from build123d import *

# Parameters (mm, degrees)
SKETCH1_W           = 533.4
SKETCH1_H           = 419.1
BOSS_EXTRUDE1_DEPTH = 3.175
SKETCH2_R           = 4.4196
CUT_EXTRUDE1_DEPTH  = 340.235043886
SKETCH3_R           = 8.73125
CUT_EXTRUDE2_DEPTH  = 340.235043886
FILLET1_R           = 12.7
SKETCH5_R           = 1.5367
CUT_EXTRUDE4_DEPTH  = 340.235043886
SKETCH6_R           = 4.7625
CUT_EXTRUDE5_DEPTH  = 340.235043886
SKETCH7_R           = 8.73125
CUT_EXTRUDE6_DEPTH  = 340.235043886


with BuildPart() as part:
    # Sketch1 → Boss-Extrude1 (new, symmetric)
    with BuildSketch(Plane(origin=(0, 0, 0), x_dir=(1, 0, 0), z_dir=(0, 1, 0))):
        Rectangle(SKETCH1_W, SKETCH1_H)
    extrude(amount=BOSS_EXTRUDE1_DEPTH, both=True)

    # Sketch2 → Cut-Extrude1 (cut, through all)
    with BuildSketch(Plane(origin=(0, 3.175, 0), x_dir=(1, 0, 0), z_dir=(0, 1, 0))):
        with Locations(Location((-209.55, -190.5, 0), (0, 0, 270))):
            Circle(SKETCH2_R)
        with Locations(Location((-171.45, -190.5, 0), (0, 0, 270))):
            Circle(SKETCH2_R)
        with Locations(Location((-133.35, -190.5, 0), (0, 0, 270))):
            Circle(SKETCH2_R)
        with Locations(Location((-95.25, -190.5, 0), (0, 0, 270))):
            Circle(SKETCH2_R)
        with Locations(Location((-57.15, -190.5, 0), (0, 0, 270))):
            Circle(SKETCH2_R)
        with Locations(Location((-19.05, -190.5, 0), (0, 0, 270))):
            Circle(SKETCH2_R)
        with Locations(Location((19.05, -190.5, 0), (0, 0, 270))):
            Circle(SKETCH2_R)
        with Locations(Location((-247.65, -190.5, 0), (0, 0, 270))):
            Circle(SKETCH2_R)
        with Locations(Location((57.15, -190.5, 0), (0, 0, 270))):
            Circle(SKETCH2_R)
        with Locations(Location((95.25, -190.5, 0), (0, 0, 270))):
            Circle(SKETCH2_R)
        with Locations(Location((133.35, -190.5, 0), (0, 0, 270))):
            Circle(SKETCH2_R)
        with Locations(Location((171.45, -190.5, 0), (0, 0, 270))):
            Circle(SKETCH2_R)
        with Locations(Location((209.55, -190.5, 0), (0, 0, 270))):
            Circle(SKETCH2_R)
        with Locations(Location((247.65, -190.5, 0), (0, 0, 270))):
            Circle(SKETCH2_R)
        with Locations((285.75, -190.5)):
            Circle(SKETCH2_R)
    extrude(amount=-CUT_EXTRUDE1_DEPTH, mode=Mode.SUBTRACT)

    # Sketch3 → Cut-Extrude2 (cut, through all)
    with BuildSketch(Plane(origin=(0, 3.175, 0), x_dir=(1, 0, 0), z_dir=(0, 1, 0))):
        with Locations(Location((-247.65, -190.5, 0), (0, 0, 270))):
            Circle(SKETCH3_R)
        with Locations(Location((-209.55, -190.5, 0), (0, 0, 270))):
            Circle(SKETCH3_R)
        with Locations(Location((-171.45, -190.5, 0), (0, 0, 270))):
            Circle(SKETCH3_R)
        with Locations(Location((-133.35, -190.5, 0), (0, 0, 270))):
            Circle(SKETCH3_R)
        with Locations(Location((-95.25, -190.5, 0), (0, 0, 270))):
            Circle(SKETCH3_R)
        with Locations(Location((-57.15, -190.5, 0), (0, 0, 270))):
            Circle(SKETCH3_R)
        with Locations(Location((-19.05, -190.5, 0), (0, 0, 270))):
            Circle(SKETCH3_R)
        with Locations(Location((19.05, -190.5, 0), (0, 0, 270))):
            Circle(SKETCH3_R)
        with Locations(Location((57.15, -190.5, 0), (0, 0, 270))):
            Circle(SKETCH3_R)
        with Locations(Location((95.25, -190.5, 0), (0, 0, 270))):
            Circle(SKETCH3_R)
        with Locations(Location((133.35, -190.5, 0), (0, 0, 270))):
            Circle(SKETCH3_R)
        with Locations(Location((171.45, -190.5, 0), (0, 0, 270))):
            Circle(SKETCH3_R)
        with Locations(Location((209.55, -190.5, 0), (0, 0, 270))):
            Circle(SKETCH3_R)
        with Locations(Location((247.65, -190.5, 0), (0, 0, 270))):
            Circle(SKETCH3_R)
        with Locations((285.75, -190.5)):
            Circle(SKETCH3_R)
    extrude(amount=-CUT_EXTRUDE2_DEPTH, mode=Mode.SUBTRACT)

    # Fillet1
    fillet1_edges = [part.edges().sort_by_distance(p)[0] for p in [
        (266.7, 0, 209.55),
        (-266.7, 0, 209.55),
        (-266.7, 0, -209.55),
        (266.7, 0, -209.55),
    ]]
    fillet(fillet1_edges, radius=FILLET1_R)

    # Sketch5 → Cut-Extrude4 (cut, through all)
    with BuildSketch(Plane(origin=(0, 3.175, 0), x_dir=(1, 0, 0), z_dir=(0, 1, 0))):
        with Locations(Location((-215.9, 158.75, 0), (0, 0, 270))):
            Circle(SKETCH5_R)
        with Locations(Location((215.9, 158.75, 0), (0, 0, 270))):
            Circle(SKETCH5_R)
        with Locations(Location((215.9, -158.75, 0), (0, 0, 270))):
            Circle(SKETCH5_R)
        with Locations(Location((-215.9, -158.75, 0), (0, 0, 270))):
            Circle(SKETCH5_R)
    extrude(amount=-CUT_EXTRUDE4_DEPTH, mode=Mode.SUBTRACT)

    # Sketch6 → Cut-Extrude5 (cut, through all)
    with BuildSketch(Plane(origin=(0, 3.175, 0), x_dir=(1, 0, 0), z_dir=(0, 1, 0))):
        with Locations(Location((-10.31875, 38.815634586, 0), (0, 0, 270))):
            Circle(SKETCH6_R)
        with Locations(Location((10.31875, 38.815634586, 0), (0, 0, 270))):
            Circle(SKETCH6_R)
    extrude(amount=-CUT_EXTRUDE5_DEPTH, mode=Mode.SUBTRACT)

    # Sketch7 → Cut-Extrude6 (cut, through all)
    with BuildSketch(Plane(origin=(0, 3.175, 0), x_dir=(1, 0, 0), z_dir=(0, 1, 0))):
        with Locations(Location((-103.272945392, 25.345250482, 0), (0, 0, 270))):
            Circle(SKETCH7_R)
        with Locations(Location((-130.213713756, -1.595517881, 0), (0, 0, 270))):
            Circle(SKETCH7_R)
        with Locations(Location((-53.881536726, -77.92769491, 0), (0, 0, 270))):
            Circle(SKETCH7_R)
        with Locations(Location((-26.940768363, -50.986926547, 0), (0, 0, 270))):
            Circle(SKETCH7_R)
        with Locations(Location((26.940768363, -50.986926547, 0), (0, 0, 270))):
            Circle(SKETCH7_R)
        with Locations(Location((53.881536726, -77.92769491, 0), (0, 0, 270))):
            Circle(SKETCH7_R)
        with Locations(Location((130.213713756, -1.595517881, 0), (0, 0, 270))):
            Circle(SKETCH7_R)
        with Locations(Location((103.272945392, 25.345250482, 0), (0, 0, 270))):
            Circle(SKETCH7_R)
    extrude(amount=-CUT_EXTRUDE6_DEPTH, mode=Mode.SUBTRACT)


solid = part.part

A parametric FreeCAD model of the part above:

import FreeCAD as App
import Part
import Sketcher
from FreeCAD import Vector
Q = App.Units.Quantity


def edges_at(feature, points):
    """Names of the edges that pass closest to the given points."""
    edges = feature.Shape.Edges
    near = lambda p: min(range(len(edges)), key=lambda i: edges[i].distToShape(Part.Vertex(*p))[0])
    return sorted({f"Edge{near(p) + 1}" for p in points})


def add_polygon(sketch, points):
    """Adds a closed chain of lines whose ends are joined by coincident constraints."""
    first, n = sketch.GeometryCount, len(points)
    for a, b in zip(points, points[1:] + points[:1]):
        sketch.addGeometry(Part.LineSegment(App.Vector(*a, 0), App.Vector(*b, 0)), False)
    for i in range(n):
        sketch.addConstraint(Sketcher.Constraint("Coincident", first + i, 2, first + (i + 1) % n, 1))

doc = App.newDocument("Part")
body = doc.addObject("PartDesign::Body", "Body")

# Sketch on XZ plane
sketch1 = doc.addObject("Sketcher::SketchObject", "Sketch")
body.addObject(sketch1)
sketch1.AttachmentSupport = (doc.XZ_Plane, [""])
sketch1.MapMode = "FlatFace"
add_polygon(sketch1, [(-267, -210), (-267, 210), (267, 210), (267, -210)])  # lines 0-3
sketch1.addConstraint(Sketcher.Constraint("Vertical", 0))
sketch1.addConstraint(Sketcher.Constraint("Horizontal", 1))
sketch1.addConstraint(Sketcher.Constraint("Vertical", 2))
sketch1.addConstraint(Sketcher.Constraint("Horizontal", 3))
sketch1.addConstraint(Sketcher.Constraint("Symmetric", 0, 2, 2, 2, -1, 1))
sketch1.addConstraint(Sketcher.Constraint("DistanceX", 1, 1, 1, 2, Q("21 in")))
sketch1.addConstraint(Sketcher.Constraint("DistanceY", 0, 1, 0, 2, Q("16.5 in")))
pad1 = doc.addObject("PartDesign::Pad", "Pad")
body.addObject(pad1)
pad1.Profile = sketch1
pad1.Length = Q("0.25 in")
pad1.Midplane = True

# Sketch on XZ plane
sketch2 = doc.addObject("Sketcher::SketchObject", "Sketch001")
body.addObject(sketch2)
sketch2.AttachmentSupport = (doc.XZ_Plane, [""])
sketch2.MapMode = "FlatFace"
sketch2.AttachmentOffset = App.Placement(Vector(0, 0, -0.125 * 25.4), App.Rotation())
sketch2.addGeometry(Part.Circle(Vector(-209.6, 190.5, 0), Vector(0, 0, 1), 4.4), False)
sketch2.addGeometry(Part.Circle(Vector(-171.4, 190.5, 0), Vector(0, 0, 1), 4.4), False)
sketch2.addGeometry(Part.Circle(Vector(-133.3, 190.5, 0), Vector(0, 0, 1), 4.4), False)
sketch2.addGeometry(Part.Circle(Vector(-95.2, 190.5, 0), Vector(0, 0, 1), 4.4), False)
sketch2.addGeometry(Part.Circle(Vector(-57.1, 190.5, 0), Vector(0, 0, 1), 4.4), False)
sketch2.addGeometry(Part.Circle(Vector(-19.1, 190.5, 0), Vector(0, 0, 1), 4.4), False)
sketch2.addGeometry(Part.Circle(Vector(19.1, 190.5, 0), Vector(0, 0, 1), 4.4), False)
sketch2.addGeometry(Part.Circle(Vector(-247.7, 190.5, 0), Vector(0, 0, 1), 4.4), False)
sketch2.addGeometry(Part.Circle(Vector(57.1, 190.5, 0), Vector(0, 0, 1), 4.4), False)
sketch2.addGeometry(Part.Circle(Vector(95.2, 190.5, 0), Vector(0, 0, 1), 4.4), False)
sketch2.addGeometry(Part.Circle(Vector(133.3, 190.5, 0), Vector(0, 0, 1), 4.4), False)
sketch2.addGeometry(Part.Circle(Vector(171.4, 190.5, 0), Vector(0, 0, 1), 4.4), False)
sketch2.addGeometry(Part.Circle(Vector(209.6, 190.5, 0), Vector(0, 0, 1), 4.4), False)
sketch2.addGeometry(Part.Circle(Vector(247.7, 190.5, 0), Vector(0, 0, 1), 4.4), False)
sketch2.addGeometry(Part.Circle(Vector(285.8, 190.5, 0), Vector(0, 0, 1), 4.4), False)
sketch2.addConstraint(Sketcher.Constraint("Equal", 0, 1))
sketch2.addConstraint(Sketcher.Constraint("Equal", 1, 2))
sketch2.addConstraint(Sketcher.Constraint("Equal", 2, 3))
sketch2.addConstraint(Sketcher.Constraint("Equal", 3, 4))
sketch2.addConstraint(Sketcher.Constraint("Equal", 4, 5))
sketch2.addConstraint(Sketcher.Constraint("Equal", 5, 6))
sketch2.addConstraint(Sketcher.Constraint("Equal", 6, 7))
sketch2.addConstraint(Sketcher.Constraint("Equal", 7, 8))
sketch2.addConstraint(Sketcher.Constraint("Equal", 8, 9))
sketch2.addConstraint(Sketcher.Constraint("Equal", 9, 10))
sketch2.addConstraint(Sketcher.Constraint("Equal", 10, 11))
sketch2.addConstraint(Sketcher.Constraint("Equal", 11, 12))
sketch2.addConstraint(Sketcher.Constraint("Equal", 12, 13))
sketch2.addConstraint(Sketcher.Constraint("Equal", 13, 14))
sketch2.addConstraint(Sketcher.Constraint("Symmetric", 5, 3, 6, 3, -2))
sketch2.addConstraint(Sketcher.Constraint("Symmetric", 4, 3, 8, 3, -2))
sketch2.addConstraint(Sketcher.Constraint("Symmetric", 3, 3, 9, 3, -2))
sketch2.addConstraint(Sketcher.Constraint("Symmetric", 2, 3, 10, 3, -2))
sketch2.addConstraint(Sketcher.Constraint("Symmetric", 1, 3, 11, 3, -2))
sketch2.addConstraint(Sketcher.Constraint("Symmetric", 0, 3, 12, 3, -2))
sketch2.addConstraint(Sketcher.Constraint("Symmetric", 7, 3, 13, 3, -2))
sketch2.addConstraint(Sketcher.Constraint("Horizontal", 0, 3, 1, 3))
sketch2.addConstraint(Sketcher.Constraint("Horizontal", 1, 3, 2, 3))
sketch2.addConstraint(Sketcher.Constraint("Horizontal", 2, 3, 3, 3))
sketch2.addConstraint(Sketcher.Constraint("Horizontal", 3, 3, 4, 3))
sketch2.addConstraint(Sketcher.Constraint("Horizontal", 4, 3, 5, 3))
sketch2.addConstraint(Sketcher.Constraint("Horizontal", 6, 3, 7, 3))
sketch2.addConstraint(Sketcher.Constraint("Horizontal", 13, 3, 14, 3))
sketch2.addConstraint(Sketcher.Constraint("Diameter", 0, Q("0.348 in")))
sketch2.addConstraint(Sketcher.Constraint("DistanceX", 0, 3, 2, 3, Q("3 in")))
sketch2.addConstraint(Sketcher.Constraint("DistanceX", 1, 3, 3, 3, Q("3 in")))
sketch2.addConstraint(Sketcher.Constraint("DistanceX", 2, 3, 4, 3, Q("3 in")))
sketch2.addConstraint(Sketcher.Constraint("DistanceX", 3, 3, 5, 3, Q("3 in")))
sketch2.addConstraint(Sketcher.Constraint("DistanceX", 4, 3, 6, 3, Q("3 in")))
sketch2.addConstraint(Sketcher.Constraint("DistanceX", 7, 3, 1, 3, Q("3 in")))
sketch2.addConstraint(Sketcher.Constraint("DistanceX", 12, 3, 14, 3, Q("3 in")))
sketch2.addConstraint(Sketcher.Constraint("DistanceY", -1, 1, 0, 3, Q("7.5 in")))
sketch2.addConstraint(Sketcher.Constraint("DistanceX", 0, 3, 1, 3, Q("1.5 in")))
pocket1 = doc.addObject("PartDesign::Pocket", "Pocket")
body.addObject(pocket1)
pocket1.Profile = sketch2
pocket1.Type = "ThroughAll"
pocket1.Reversed = True

# Sketch on XZ plane
sketch3 = doc.addObject("Sketcher::SketchObject", "Sketch002")
body.addObject(sketch3)
sketch3.AttachmentSupport = (doc.XZ_Plane, [""])
sketch3.MapMode = "FlatFace"
sketch3.AttachmentOffset = App.Placement(Vector(0, 0, -0.125 * 25.4), App.Rotation())
sketch3.addGeometry(Part.Circle(Vector(-248, 190, 0), Vector(0, 0, 1), 9), False)
sketch3.addGeometry(Part.Circle(Vector(-210, 190, 0), Vector(0, 0, 1), 9), False)
sketch3.addGeometry(Part.Circle(Vector(-171, 190, 0), Vector(0, 0, 1), 9), False)
sketch3.addGeometry(Part.Circle(Vector(-133, 190, 0), Vector(0, 0, 1), 9), False)
sketch3.addGeometry(Part.Circle(Vector(-95, 190, 0), Vector(0, 0, 1), 9), False)
sketch3.addGeometry(Part.Circle(Vector(-57, 190, 0), Vector(0, 0, 1), 9), False)
sketch3.addGeometry(Part.Circle(Vector(-19, 190, 0), Vector(0, 0, 1), 9), False)
sketch3.addGeometry(Part.Circle(Vector(19, 190, 0), Vector(0, 0, 1), 9), False)
sketch3.addGeometry(Part.Circle(Vector(57, 190, 0), Vector(0, 0, 1), 9), False)
sketch3.addGeometry(Part.Circle(Vector(95, 190, 0), Vector(0, 0, 1), 9), False)
sketch3.addGeometry(Part.Circle(Vector(133, 190, 0), Vector(0, 0, 1), 9), False)
sketch3.addGeometry(Part.Circle(Vector(171, 190, 0), Vector(0, 0, 1), 9), False)
sketch3.addGeometry(Part.Circle(Vector(210, 190, 0), Vector(0, 0, 1), 9), False)
sketch3.addGeometry(Part.Circle(Vector(248, 190, 0), Vector(0, 0, 1), 9), False)
sketch3.addGeometry(Part.Circle(Vector(286, 190, 0), Vector(0, 0, 1), 9), False)
sketch3.addConstraint(Sketcher.Constraint("Equal", 0, 1))
sketch3.addConstraint(Sketcher.Constraint("Equal", 1, 2))
sketch3.addConstraint(Sketcher.Constraint("Equal", 2, 3))
sketch3.addConstraint(Sketcher.Constraint("Equal", 3, 4))
sketch3.addConstraint(Sketcher.Constraint("Equal", 4, 5))
sketch3.addConstraint(Sketcher.Constraint("Equal", 5, 6))
sketch3.addConstraint(Sketcher.Constraint("Equal", 6, 7))
sketch3.addConstraint(Sketcher.Constraint("Equal", 7, 8))
sketch3.addConstraint(Sketcher.Constraint("Equal", 8, 9))
sketch3.addConstraint(Sketcher.Constraint("Equal", 9, 10))
sketch3.addConstraint(Sketcher.Constraint("Equal", 10, 11))
sketch3.addConstraint(Sketcher.Constraint("Equal", 11, 12))
sketch3.addConstraint(Sketcher.Constraint("Equal", 12, 13))
sketch3.addConstraint(Sketcher.Constraint("Equal", 13, 14))
sketch3.addConstraint(Sketcher.Constraint("Symmetric", 6, 3, 7, 3, -2))
sketch3.addConstraint(Sketcher.Constraint("Symmetric", 5, 3, 8, 3, -2))
sketch3.addConstraint(Sketcher.Constraint("Symmetric", 4, 3, 9, 3, -2))
sketch3.addConstraint(Sketcher.Constraint("Symmetric", 3, 3, 10, 3, -2))
sketch3.addConstraint(Sketcher.Constraint("Symmetric", 2, 3, 11, 3, -2))
sketch3.addConstraint(Sketcher.Constraint("Symmetric", 1, 3, 12, 3, -2))
sketch3.addConstraint(Sketcher.Constraint("Symmetric", 0, 3, 13, 3, -2))
sketch3.addConstraint(Sketcher.Constraint("Horizontal", 0, 3, 1, 3))
sketch3.addConstraint(Sketcher.Constraint("Horizontal", 1, 3, 2, 3))
sketch3.addConstraint(Sketcher.Constraint("Horizontal", 2, 3, 3, 3))
sketch3.addConstraint(Sketcher.Constraint("Horizontal", 3, 3, 4, 3))
sketch3.addConstraint(Sketcher.Constraint("Horizontal", 4, 3, 5, 3))
sketch3.addConstraint(Sketcher.Constraint("Horizontal", 5, 3, 6, 3))
sketch3.addConstraint(Sketcher.Constraint("Horizontal", 13, 3, 14, 3))
sketch3.addConstraint(Sketcher.Constraint("Diameter", 0, Q("0.6875 in")))
sketch3.addConstraint(Sketcher.Constraint("DistanceX", 0, 3, 2, 3, Q("3 in")))
sketch3.addConstraint(Sketcher.Constraint("DistanceX", 1, 3, 3, 3, Q("3 in")))
sketch3.addConstraint(Sketcher.Constraint("DistanceX", 2, 3, 4, 3, Q("3 in")))
sketch3.addConstraint(Sketcher.Constraint("DistanceX", 3, 3, 5, 3, Q("3 in")))
sketch3.addConstraint(Sketcher.Constraint("DistanceX", 4, 3, 6, 3, Q("3 in")))
sketch3.addConstraint(Sketcher.Constraint("DistanceX", 5, 3, 7, 3, Q("3 in")))
sketch3.addConstraint(Sketcher.Constraint("DistanceX", 12, 3, 14, 3, Q("3 in")))
sketch3.addConstraint(Sketcher.Constraint("DistanceY", -1, 1, 0, 3, Q("7.5 in")))
sketch3.addConstraint(Sketcher.Constraint("DistanceX", 0, 3, 1, 3, Q("1.5 in")))
pocket2 = doc.addObject("PartDesign::Pocket", "Pocket001")
body.addObject(pocket2)
pocket2.Profile = sketch3
pocket2.Type = "ThroughAll"
pocket2.Reversed = True
doc.recompute()

fillet = doc.addObject("PartDesign::Fillet", "Fillet")
body.addObject(fillet)
fillet.Base = (pocket2, edges_at(pocket2, [
    (266.7, 0, 209.55),
    (-266.7, 0, 209.55),
    (-266.7, 0, -209.55),
    (266.7, 0, -209.55),
]))
fillet.Radius = Q("0.5 in")

# Sketch on XZ plane
sketch4 = doc.addObject("Sketcher::SketchObject", "Sketch003")
body.addObject(sketch4)
sketch4.AttachmentSupport = (doc.XZ_Plane, [""])
sketch4.MapMode = "FlatFace"
sketch4.AttachmentOffset = App.Placement(Vector(0, 0, -0.125 * 25.4), App.Rotation())
sketch4.addGeometry(Part.Circle(Vector(-215.9, -158.8, 0), Vector(0, 0, 1), 1.5), False)
sketch4.addGeometry(Part.Circle(Vector(215.9, -158.8, 0), Vector(0, 0, 1), 1.5), False)
sketch4.addGeometry(Part.Circle(Vector(215.9, 158.8, 0), Vector(0, 0, 1), 1.5), False)
sketch4.addGeometry(Part.Circle(Vector(-215.9, 158.8, 0), Vector(0, 0, 1), 1.5), False)
sketch4.addConstraint(Sketcher.Constraint("Equal", 0, 1))
sketch4.addConstraint(Sketcher.Constraint("Equal", 1, 2))
sketch4.addConstraint(Sketcher.Constraint("Equal", 2, 3))
sketch4.addConstraint(Sketcher.Constraint("Symmetric", 0, 3, 2, 3, -1, 1))
sketch4.addConstraint(Sketcher.Constraint("Symmetric", 1, 3, 3, 3, -1, 1))
sketch4.addConstraint(Sketcher.Constraint("Symmetric", 0, 3, 1, 3, -2))
sketch4.addConstraint(Sketcher.Constraint("Diameter", 0, Q("0.121 in")))
sketch4.addConstraint(Sketcher.Constraint("DistanceX", 0, 3, 1, 3, Q("17 in")))
sketch4.addConstraint(Sketcher.Constraint("DistanceY", 1, 3, 2, 3, Q("12.5 in")))
pocket3 = doc.addObject("PartDesign::Pocket", "Pocket002")
body.addObject(pocket3)
pocket3.Profile = sketch4
pocket3.Type = "ThroughAll"
pocket3.Reversed = True

# Sketch on XZ plane
sketch5 = doc.addObject("Sketcher::SketchObject", "Sketch004")
body.addObject(sketch5)
sketch5.AttachmentSupport = (doc.XZ_Plane, [""])
sketch5.MapMode = "FlatFace"
sketch5.AttachmentOffset = App.Placement(Vector(0, 0, -0.125 * 25.4), App.Rotation())
sketch5.addGeometry(Part.Circle(Vector(-10.3, -38.8, 0), Vector(0, 0, 1), 4.8), False)
sketch5.addGeometry(Part.Circle(Vector(10.3, -38.8, 0), Vector(0, 0, 1), 4.8), False)
sketch5.addConstraint(Sketcher.Constraint("Equal", 0, 1))
sketch5.addConstraint(Sketcher.Constraint("Symmetric", 0, 3, 1, 3, -2))
sketch5.addConstraint(Sketcher.Constraint("Diameter", 0, Q("0.375 in")))
sketch5.addConstraint(Sketcher.Constraint("DistanceX", 0, 3, -1, 1, Q("0.40625 in")))
sketch5.addConstraint(Sketcher.Constraint("DistanceY", 0, 3, -1, 1, Q("38.815635 mm")))
pocket4 = doc.addObject("PartDesign::Pocket", "Pocket003")
body.addObject(pocket4)
pocket4.Profile = sketch5
pocket4.Type = "ThroughAll"
pocket4.Reversed = True

# Sketch on XZ plane
sketch6 = doc.addObject("Sketcher::SketchObject", "Sketch005")
body.addObject(sketch6)
sketch6.AttachmentSupport = (doc.XZ_Plane, [""])
sketch6.MapMode = "FlatFace"
sketch6.AttachmentOffset = App.Placement(Vector(0, 0, -0.125 * 25.4), App.Rotation())
sketch6.addGeometry(Part.Circle(Vector(-103, -25, 0), Vector(0, 0, 1), 9), False)
sketch6.addGeometry(Part.Circle(Vector(-130, 2, 0), Vector(0, 0, 1), 9), False)
sketch6.addGeometry(Part.Circle(Vector(-54, 78, 0), Vector(0, 0, 1), 9), False)
sketch6.addGeometry(Part.Circle(Vector(-27, 51, 0), Vector(0, 0, 1), 9), False)
sketch6.addGeometry(Part.Circle(Vector(27, 51, 0), Vector(0, 0, 1), 9), False)
sketch6.addGeometry(Part.Circle(Vector(54, 78, 0), Vector(0, 0, 1), 9), False)
sketch6.addGeometry(Part.Circle(Vector(130, 2, 0), Vector(0, 0, 1), 9), False)
sketch6.addGeometry(Part.Circle(Vector(103, -25, 0), Vector(0, 0, 1), 9), False)
sketch6.addConstraint(Sketcher.Constraint("Equal", 0, 1))
sketch6.addConstraint(Sketcher.Constraint("Equal", 1, 2))
sketch6.addConstraint(Sketcher.Constraint("Equal", 2, 3))
sketch6.addConstraint(Sketcher.Constraint("Equal", 3, 4))
sketch6.addConstraint(Sketcher.Constraint("Equal", 4, 5))
sketch6.addConstraint(Sketcher.Constraint("Equal", 5, 6))
sketch6.addConstraint(Sketcher.Constraint("Equal", 6, 7))
sketch6.addConstraint(Sketcher.Constraint("Symmetric", 3, 3, 4, 3, -2))
sketch6.addConstraint(Sketcher.Constraint("Symmetric", 2, 3, 5, 3, -2))
sketch6.addConstraint(Sketcher.Constraint("Symmetric", 1, 3, 6, 3, -2))
sketch6.addConstraint(Sketcher.Constraint("Symmetric", 0, 3, 7, 3, -2))
sketch6.addConstraint(Sketcher.Constraint("Diameter", 0, Q("0.6875 in")))
sketch6.addConstraint(Sketcher.Constraint("DistanceY", 0, 3, -1, 1, Q("25.34525 mm")))
sketch6.addConstraint(Sketcher.Constraint("DistanceX", 3, 3, -1, 1, Q("26.940768 mm")))
sketch6.addConstraint(Sketcher.Constraint("DistanceX", 1, 3, 0, 3, Q("26.940768 mm")))
sketch6.addConstraint(Sketcher.Constraint("DistanceY", 0, 3, 1, 3, Q("26.940768 mm")))
sketch6.addConstraint(Sketcher.Constraint("DistanceX", 0, 3, 2, 3, Q("49.391409 mm")))
sketch6.addConstraint(Sketcher.Constraint("DistanceX", 2, 3, 3, 3, Q("26.940768 mm")))
sketch6.addConstraint(Sketcher.Constraint("DistanceY", 3, 3, 2, 3, Q("26.940768 mm")))
sketch6.addConstraint(Sketcher.Constraint("DistanceY", 1, 3, 3, 3, Q("49.391409 mm")))
pocket5 = doc.addObject("PartDesign::Pocket", "Pocket004")
body.addObject(pocket5)
pocket5.Profile = sketch6
pocket5.Type = "ThroughAll"
pocket5.Reversed = True

doc.recompute()
